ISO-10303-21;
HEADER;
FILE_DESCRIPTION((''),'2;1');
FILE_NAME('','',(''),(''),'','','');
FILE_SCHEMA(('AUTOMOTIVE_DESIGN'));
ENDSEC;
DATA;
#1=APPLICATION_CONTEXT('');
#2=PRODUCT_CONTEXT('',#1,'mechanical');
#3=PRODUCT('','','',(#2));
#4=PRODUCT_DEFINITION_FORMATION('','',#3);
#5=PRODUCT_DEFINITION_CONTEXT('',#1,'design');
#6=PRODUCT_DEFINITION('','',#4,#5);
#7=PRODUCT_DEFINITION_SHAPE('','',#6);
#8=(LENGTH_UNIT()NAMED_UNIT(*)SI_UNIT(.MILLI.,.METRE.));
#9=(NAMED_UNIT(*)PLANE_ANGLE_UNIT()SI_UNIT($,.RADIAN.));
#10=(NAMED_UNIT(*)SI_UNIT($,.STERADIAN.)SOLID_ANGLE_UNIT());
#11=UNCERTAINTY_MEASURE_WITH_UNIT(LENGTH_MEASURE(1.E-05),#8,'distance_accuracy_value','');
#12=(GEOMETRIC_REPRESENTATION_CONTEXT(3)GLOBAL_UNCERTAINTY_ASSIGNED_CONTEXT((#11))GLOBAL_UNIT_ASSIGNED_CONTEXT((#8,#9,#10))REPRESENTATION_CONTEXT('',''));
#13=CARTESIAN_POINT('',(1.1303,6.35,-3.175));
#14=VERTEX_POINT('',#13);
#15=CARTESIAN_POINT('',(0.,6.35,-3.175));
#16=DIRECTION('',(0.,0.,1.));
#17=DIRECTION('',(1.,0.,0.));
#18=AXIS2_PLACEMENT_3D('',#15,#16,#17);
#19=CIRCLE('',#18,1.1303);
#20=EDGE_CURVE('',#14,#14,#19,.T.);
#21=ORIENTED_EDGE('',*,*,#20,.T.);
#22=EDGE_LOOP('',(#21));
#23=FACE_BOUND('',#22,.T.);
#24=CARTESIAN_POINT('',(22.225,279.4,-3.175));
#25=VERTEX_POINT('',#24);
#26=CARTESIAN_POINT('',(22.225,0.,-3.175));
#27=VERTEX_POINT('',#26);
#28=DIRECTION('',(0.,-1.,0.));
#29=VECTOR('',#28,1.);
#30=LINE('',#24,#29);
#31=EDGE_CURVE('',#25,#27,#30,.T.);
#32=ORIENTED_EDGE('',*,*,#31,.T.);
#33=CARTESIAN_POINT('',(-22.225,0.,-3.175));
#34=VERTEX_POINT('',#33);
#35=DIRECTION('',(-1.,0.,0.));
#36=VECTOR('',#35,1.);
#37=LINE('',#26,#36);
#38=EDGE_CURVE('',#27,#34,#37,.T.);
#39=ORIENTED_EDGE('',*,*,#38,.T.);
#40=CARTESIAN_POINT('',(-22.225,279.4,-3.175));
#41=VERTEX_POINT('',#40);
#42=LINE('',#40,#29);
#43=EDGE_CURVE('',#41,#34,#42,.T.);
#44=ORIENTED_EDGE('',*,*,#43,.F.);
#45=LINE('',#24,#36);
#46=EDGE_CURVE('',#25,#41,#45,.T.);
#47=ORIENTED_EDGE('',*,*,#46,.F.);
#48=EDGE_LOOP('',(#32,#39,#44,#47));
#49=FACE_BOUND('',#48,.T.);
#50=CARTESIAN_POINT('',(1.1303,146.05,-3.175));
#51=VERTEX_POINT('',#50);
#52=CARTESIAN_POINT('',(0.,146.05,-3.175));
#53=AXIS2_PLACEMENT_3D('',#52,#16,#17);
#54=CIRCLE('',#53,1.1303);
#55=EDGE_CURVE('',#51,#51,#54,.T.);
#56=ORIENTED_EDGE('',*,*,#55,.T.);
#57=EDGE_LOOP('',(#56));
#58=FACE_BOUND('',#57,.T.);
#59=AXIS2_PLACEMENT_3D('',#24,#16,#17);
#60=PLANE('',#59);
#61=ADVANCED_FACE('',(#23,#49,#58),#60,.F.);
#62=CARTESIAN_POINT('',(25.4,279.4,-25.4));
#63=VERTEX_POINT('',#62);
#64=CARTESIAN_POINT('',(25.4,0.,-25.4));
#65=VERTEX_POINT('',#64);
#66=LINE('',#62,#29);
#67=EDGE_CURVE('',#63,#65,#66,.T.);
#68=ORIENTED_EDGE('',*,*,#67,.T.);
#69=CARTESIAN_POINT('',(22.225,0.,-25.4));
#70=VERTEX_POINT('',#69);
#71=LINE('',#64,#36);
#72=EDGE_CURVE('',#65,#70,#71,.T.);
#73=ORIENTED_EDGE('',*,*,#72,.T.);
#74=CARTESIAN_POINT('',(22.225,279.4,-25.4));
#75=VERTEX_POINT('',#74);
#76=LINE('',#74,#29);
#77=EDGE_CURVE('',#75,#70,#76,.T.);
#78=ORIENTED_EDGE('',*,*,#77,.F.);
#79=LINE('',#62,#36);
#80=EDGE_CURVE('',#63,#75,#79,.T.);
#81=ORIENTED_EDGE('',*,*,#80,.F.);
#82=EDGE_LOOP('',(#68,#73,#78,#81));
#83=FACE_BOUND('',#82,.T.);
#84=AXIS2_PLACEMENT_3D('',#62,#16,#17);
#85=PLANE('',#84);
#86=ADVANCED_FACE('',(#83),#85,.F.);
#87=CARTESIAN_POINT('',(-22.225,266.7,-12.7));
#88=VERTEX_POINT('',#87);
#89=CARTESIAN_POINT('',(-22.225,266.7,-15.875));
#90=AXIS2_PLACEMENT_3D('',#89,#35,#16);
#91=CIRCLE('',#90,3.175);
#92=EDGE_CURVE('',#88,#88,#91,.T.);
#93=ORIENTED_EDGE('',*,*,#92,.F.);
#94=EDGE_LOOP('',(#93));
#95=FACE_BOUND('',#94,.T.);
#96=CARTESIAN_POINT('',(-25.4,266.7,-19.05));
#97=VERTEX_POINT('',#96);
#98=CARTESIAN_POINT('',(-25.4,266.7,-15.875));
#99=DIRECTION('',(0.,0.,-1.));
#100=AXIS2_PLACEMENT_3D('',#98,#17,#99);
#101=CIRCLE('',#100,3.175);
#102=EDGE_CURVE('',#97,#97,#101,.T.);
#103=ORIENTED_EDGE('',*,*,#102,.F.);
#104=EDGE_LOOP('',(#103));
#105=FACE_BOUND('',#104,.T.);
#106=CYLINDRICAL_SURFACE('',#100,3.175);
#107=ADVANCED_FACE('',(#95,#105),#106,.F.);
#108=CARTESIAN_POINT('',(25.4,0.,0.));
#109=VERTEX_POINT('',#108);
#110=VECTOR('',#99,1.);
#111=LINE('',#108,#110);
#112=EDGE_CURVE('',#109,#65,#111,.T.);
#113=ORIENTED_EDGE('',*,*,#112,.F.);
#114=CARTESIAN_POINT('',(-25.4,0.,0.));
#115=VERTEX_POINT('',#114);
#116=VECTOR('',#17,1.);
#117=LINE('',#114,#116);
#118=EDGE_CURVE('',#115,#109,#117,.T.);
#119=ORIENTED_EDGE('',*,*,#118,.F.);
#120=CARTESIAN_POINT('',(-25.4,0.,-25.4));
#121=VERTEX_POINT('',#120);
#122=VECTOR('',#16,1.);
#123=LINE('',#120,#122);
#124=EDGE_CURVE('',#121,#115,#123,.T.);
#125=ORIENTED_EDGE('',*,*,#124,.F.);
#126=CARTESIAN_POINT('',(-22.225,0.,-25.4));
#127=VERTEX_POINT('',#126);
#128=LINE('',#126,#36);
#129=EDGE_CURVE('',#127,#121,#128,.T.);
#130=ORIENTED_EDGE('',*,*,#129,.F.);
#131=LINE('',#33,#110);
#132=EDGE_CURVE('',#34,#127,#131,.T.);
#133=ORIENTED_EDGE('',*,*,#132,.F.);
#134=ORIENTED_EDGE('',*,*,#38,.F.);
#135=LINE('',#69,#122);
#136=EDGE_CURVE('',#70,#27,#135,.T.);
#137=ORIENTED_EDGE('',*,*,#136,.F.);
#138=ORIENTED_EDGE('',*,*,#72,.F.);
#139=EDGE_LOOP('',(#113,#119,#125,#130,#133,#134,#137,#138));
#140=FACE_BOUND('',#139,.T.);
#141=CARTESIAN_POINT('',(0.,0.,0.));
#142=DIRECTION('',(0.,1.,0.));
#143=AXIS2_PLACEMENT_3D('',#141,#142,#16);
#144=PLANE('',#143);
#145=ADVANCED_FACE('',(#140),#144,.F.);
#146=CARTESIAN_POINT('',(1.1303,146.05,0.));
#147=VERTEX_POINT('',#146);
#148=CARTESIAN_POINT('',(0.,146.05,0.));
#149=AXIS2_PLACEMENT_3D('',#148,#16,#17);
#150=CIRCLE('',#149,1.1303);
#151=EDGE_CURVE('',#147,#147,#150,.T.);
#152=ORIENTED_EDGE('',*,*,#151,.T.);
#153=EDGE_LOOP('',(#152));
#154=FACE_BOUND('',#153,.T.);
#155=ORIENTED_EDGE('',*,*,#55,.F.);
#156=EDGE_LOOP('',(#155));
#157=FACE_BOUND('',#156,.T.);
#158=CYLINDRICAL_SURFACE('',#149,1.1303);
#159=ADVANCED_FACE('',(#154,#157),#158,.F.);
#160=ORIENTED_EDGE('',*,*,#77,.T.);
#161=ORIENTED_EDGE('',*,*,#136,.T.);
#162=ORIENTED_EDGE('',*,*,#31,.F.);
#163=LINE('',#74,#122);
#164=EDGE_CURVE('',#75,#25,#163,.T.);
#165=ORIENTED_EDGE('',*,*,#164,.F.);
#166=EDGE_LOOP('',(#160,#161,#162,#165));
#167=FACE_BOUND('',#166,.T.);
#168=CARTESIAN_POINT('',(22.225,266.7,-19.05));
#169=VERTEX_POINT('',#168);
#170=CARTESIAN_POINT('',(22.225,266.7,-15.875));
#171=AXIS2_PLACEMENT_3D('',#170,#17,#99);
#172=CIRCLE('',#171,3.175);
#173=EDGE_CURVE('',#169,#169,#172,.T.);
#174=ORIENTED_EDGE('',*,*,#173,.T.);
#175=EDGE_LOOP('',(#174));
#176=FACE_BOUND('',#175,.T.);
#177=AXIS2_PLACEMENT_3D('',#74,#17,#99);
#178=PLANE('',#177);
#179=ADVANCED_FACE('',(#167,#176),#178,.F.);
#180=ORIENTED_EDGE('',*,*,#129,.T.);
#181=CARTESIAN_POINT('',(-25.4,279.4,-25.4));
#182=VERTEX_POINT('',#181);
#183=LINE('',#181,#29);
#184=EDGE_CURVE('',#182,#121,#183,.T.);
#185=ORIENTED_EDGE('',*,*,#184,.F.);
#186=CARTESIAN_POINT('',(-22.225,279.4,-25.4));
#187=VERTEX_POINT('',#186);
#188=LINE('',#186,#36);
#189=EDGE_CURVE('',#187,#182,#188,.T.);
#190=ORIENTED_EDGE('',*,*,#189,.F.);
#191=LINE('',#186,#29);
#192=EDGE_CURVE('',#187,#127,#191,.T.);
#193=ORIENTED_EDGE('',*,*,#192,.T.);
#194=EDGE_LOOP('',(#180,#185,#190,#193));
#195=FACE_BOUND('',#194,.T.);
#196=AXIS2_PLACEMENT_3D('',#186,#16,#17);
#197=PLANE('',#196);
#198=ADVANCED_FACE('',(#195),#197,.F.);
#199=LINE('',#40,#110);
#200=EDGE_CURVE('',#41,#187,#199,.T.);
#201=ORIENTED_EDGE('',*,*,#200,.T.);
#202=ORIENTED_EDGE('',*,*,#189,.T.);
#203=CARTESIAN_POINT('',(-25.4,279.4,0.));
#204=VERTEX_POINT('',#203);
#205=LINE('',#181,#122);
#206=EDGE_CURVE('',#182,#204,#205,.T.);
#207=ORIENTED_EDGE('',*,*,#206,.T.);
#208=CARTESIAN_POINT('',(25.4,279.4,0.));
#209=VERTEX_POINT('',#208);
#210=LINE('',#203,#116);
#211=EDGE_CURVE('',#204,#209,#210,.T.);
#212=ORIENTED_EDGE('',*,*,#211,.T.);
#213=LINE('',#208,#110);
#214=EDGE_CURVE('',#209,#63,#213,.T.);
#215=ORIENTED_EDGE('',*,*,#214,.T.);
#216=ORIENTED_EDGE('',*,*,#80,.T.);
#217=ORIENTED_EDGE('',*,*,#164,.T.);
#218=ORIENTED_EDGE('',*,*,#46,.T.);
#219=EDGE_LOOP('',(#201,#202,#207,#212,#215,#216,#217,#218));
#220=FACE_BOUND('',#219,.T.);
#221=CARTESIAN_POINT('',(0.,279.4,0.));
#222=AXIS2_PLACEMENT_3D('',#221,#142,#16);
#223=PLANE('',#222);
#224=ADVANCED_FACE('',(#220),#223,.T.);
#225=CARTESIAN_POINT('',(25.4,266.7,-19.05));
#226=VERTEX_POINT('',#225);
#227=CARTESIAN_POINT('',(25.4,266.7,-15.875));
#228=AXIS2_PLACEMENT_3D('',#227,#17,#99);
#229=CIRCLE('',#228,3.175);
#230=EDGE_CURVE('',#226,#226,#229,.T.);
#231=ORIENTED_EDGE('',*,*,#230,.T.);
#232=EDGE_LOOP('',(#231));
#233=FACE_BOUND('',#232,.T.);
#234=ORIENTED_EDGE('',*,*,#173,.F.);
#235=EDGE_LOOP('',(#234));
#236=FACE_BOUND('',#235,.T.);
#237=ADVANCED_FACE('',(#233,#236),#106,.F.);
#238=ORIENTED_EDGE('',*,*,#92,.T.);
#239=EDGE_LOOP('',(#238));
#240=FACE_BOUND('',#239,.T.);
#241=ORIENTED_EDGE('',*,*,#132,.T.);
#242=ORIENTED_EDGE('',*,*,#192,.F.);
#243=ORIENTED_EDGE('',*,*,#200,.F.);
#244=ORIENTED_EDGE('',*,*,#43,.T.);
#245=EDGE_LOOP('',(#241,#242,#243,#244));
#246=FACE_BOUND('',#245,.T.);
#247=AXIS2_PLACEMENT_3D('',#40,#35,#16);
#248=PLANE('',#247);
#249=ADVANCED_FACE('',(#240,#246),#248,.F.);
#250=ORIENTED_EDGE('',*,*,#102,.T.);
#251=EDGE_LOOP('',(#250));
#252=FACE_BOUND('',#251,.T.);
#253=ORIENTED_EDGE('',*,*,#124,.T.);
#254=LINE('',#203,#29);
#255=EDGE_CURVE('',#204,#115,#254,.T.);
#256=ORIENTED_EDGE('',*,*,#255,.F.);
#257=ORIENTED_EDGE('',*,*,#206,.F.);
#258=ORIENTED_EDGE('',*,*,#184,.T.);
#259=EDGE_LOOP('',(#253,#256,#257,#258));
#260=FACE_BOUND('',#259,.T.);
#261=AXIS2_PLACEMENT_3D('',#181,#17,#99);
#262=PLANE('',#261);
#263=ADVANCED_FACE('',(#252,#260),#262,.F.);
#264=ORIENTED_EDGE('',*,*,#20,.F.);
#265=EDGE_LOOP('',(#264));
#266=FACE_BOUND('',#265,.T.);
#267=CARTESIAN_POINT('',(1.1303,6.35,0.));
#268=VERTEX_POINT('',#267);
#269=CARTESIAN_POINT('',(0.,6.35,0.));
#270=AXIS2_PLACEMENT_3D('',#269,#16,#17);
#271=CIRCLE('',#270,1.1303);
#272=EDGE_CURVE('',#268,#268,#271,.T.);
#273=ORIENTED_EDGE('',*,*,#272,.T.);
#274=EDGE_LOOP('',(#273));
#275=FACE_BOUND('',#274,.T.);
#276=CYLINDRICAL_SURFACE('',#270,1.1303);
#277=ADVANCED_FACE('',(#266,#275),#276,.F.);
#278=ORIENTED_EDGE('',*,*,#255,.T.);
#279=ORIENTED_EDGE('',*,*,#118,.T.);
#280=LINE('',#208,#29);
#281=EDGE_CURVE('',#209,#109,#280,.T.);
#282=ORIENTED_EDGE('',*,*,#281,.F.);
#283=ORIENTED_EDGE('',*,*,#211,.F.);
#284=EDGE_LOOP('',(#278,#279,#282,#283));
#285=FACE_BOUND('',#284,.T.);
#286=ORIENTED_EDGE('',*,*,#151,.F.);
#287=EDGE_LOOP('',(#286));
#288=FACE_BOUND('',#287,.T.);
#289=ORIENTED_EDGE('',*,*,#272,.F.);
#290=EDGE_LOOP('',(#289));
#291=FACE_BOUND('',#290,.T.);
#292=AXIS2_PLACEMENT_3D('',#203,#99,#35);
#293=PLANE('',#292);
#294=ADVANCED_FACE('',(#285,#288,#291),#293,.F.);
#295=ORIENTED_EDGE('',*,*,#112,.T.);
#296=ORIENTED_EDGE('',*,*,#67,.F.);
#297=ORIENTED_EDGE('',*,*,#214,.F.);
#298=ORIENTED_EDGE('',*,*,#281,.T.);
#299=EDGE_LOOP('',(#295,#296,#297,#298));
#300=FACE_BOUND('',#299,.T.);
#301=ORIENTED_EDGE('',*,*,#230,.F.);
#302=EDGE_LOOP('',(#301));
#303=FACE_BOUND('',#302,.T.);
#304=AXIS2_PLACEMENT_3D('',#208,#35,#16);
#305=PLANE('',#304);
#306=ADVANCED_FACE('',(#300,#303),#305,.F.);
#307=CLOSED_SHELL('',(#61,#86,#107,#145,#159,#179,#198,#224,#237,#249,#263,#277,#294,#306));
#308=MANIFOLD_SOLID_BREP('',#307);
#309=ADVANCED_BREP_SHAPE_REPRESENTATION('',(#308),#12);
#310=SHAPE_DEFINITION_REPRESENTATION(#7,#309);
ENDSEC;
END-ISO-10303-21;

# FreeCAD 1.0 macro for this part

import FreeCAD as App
import Part
import Sketcher

V = App.Vector
Q = App.Units.Quantity

doc = App.newDocument("Part")
body = doc.addObject("PartDesign::Body", "Body")

# Sketch on XZ plane
sketch1 = body.newObject("Sketcher::SketchObject", "Sketch")
sketch1.AttachmentSupport = (doc.getObject("XZ_Plane"), [""])
sketch1.MapMode = "FlatFace"
sketch1.addGeometry(Part.LineSegment(V(-25.4, -25.4, 0), V(-25.4, 0, 0)), False)
sketch1.addGeometry(Part.LineSegment(V(-25.4, 0, 0), V(25.4, 0, 0)), False)
sketch1.addGeometry(Part.LineSegment(V(25.4, 0, 0), V(25.4, -25.4, 0)), False)
sketch1.addGeometry(Part.LineSegment(V(25.4, -25.4, 0), V(22.2, -25.4, 0)), False)
sketch1.addGeometry(Part.LineSegment(V(22.2, -25.4, 0), V(22.2, -3.2, 0)), False)
sketch1.addGeometry(Part.LineSegment(V(22.2, -3.2, 0), V(-22.2, -3.2, 0)), False)
sketch1.addGeometry(Part.LineSegment(V(-22.2, -3.2, 0), V(-22.2, -25.4, 0)), False)
sketch1.addGeometry(Part.LineSegment(V(-22.2, -25.4, 0), V(-25.4, -25.4, 0)), False)
sketch1.addConstraint(Sketcher.Constraint("Coincident", 0, 2, 1, 1))
sketch1.addConstraint(Sketcher.Constraint("Coincident", 1, 2, 2, 1))
sketch1.addConstraint(Sketcher.Constraint("Coincident", 2, 2, 3, 1))
sketch1.addConstraint(Sketcher.Constraint("Coincident", 3, 2, 4, 1))
sketch1.addConstraint(Sketcher.Constraint("Coincident", 4, 2, 5, 1))
sketch1.addConstraint(Sketcher.Constraint("Coincident", 5, 2, 6, 1))
sketch1.addConstraint(Sketcher.Constraint("Coincident", 6, 2, 7, 1))
sketch1.addConstraint(Sketcher.Constraint("Coincident", 7, 2, 0, 1))
sketch1.addConstraint(Sketcher.Constraint("Vertical", 0))
sketch1.addConstraint(Sketcher.Constraint("Horizontal", 1))
sketch1.addConstraint(Sketcher.Constraint("Vertical", 2))
sketch1.addConstraint(Sketcher.Constraint("Horizontal", 3))
sketch1.addConstraint(Sketcher.Constraint("Vertical", 4))
sketch1.addConstraint(Sketcher.Constraint("Horizontal", 5))
sketch1.addConstraint(Sketcher.Constraint("Vertical", 6))
sketch1.addConstraint(Sketcher.Constraint("Horizontal", 7))
sketch1.addConstraint(Sketcher.Constraint("Symmetric", 0, 2, 1, 2, -1, 1))
sketch1.addConstraint(Sketcher.Constraint("Symmetric", 3, 2, 6, 2, -2))
sketch1.addConstraint(Sketcher.Constraint("DistanceX", 1, 1, 1, 2, Q("2 in")))
sketch1.addConstraint(Sketcher.Constraint("DistanceY", 0, 1, 0, 2, Q("1 in")))
sketch1.addConstraint(Sketcher.Constraint("DistanceX", 5, 2, 5, 1, Q("1.75 in")))
sketch1.addConstraint(Sketcher.Constraint("DistanceY", 4, 1, 4, 2, Q("0.875 in")))
pad1 = body.newObject("PartDesign::Pad", "Pad")
pad1.Profile = sketch1
pad1.Length = Q("11 in")
pad1.Reversed = True

# Sketch on YZ plane
sketch2 = body.newObject("Sketcher::SketchObject", "Sketch001")
sketch2.AttachmentSupport = (doc.getObject("YZ_Plane"), [""])
sketch2.MapMode = "FlatFace"
sketch2.AttachmentOffset = App.Placement(V(0, 0, 1 * 25.4), App.Rotation())
sketch2.addGeometry(Part.Circle(V(266.7, -15.9, 0), V(0, 0, 1), 3.2), False)
sketch2.addConstraint(Sketcher.Constraint("Diameter", 0, Q("0.25 in")))
sketch2.addConstraint(Sketcher.Constraint("DistanceX", -1, 1, 0, 3, Q("10.5 in")))
sketch2.addConstraint(Sketcher.Constraint("DistanceY", 0, 3, -1, 1, Q("0.625 in")))
pocket1 = body.newObject("PartDesign::Pocket", "Pocket")
pocket1.Profile = sketch2
pocket1.Type = "ThroughAll"

# Sketch on XY plane
sketch3 = body.newObject("Sketcher::SketchObject", "Sketch002")
sketch3.AttachmentSupport = (doc.getObject("XY_Plane"), [""])
sketch3.MapMode = "FlatFace"
sketch3.addGeometry(Part.Circle(V(0, 146.1, 0), V(0, 0, 1), 1.1), False)
sketch3.addGeometry(Part.Circle(V(0, 6.3, 0), V(0, 0, 1), 1.1), False)
sketch3.addConstraint(Sketcher.Constraint("Equal", 0, 1))
sketch3.addConstraint(Sketcher.Constraint("PointOnObject", 0, 3, -2))
sketch3.addConstraint(Sketcher.Constraint("PointOnObject", 1, 3, -2))
sketch3.addConstraint(Sketcher.Constraint("Diameter", 0, Q("0.089 in")))
sketch3.addConstraint(Sketcher.Constraint("DistanceY", 1, 3, 0, 3, Q("5.5 in")))
sketch3.addConstraint(Sketcher.Constraint("DistanceY", -1, 1, 0, 3, Q("5.75 in")))
doc.recompute()
hole = body.newObject("PartDesign::Hole", "Hole")
hole.Profile = sketch3
hole.ThreadType = "None"
hole.Diameter = Q("0.089 in")
hole.DepthType = "Dimension"
hole.Depth = Q("0.125 in")
hole.DrillPoint = "Flat"

doc.recompute()
